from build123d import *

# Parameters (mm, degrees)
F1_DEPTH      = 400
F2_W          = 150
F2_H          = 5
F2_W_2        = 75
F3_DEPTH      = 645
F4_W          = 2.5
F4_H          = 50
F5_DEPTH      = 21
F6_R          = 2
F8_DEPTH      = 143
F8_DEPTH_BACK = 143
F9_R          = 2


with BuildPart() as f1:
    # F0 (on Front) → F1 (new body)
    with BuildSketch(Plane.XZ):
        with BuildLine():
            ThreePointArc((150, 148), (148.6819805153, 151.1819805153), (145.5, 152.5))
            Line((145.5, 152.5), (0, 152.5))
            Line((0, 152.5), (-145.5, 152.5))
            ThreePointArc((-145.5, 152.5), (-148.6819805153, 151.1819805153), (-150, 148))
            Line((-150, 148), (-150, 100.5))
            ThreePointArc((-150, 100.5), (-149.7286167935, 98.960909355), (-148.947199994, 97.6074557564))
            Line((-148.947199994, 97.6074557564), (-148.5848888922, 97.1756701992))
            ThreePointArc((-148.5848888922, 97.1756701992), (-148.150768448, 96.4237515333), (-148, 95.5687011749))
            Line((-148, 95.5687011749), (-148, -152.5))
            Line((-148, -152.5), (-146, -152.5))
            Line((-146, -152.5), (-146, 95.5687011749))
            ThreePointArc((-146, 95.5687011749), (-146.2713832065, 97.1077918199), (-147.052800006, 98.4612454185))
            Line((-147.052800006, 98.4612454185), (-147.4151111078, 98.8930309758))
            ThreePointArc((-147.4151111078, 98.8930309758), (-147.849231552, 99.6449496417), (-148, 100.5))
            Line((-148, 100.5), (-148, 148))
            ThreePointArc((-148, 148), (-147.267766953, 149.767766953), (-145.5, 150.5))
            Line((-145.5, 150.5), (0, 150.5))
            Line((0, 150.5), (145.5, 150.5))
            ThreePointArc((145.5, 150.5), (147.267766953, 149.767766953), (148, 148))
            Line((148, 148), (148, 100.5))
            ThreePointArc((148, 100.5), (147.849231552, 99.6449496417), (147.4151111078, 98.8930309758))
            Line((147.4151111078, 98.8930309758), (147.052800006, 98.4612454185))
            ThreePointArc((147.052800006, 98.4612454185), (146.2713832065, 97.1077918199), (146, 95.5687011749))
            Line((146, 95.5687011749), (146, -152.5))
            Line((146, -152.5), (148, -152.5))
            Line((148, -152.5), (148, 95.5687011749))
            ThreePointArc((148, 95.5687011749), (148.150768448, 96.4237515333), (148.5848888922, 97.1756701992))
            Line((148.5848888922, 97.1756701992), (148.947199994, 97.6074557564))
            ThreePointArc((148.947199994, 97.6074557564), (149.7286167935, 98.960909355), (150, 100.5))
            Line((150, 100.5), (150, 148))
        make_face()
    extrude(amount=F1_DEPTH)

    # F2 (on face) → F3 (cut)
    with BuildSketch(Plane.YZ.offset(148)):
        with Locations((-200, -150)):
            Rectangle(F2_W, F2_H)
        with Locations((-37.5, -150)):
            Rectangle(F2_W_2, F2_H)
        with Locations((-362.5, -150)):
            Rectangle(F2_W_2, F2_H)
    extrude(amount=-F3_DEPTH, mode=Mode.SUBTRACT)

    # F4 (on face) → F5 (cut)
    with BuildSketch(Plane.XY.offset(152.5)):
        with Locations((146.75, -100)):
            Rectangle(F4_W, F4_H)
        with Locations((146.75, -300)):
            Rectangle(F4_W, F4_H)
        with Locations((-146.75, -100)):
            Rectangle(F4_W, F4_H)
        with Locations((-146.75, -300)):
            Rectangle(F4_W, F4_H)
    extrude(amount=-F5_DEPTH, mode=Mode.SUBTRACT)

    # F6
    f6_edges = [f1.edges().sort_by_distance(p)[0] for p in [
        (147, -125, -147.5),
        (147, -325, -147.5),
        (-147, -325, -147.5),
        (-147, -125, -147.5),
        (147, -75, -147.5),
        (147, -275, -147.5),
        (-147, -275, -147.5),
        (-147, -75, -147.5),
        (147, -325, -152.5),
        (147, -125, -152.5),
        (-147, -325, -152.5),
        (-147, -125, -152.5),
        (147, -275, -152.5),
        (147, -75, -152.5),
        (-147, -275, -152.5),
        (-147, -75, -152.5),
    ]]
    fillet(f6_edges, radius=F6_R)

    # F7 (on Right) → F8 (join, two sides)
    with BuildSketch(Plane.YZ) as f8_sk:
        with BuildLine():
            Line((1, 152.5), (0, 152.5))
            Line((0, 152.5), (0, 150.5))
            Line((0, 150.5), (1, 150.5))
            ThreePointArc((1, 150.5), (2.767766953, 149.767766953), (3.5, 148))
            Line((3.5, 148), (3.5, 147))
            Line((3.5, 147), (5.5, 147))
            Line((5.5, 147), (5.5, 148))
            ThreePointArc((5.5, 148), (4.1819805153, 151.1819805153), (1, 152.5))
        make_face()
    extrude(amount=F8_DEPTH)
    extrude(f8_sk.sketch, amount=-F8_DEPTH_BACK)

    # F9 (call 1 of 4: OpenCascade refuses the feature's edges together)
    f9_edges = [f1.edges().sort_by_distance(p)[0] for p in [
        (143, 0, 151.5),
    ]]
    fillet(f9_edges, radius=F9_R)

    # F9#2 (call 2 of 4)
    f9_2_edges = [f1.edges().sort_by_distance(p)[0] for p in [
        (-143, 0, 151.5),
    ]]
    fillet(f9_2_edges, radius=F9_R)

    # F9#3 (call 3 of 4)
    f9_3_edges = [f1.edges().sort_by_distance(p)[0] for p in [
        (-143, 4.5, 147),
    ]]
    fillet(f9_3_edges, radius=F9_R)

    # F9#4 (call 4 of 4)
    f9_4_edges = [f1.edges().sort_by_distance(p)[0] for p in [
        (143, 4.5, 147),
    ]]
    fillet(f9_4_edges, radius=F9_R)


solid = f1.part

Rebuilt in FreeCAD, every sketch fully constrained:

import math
import FreeCAD as App
import Part
import Sketcher
from FreeCAD import Vector
Q = App.Units.Quantity


def edges_at(feature, points):
    """Names of the edges that pass closest to the given points."""
    edges = feature.Shape.Edges
    near = lambda p: min(range(len(edges)), key=lambda i: edges[i].distToShape(Part.Vertex(*p))[0])
    return sorted({f"Edge{near(p) + 1}" for p in points})


def add_polygon(sketch, points):
    """Adds a closed chain of lines whose ends are joined by coincident constraints."""
    first, n = sketch.GeometryCount, len(points)
    for a, b in zip(points, points[1:] + points[:1]):
        sketch.addGeometry(Part.LineSegment(App.Vector(*a, 0), App.Vector(*b, 0)), False)
    for i in range(n):
        sketch.addConstraint(Sketcher.Constraint("Coincident", first + i, 2, first + (i + 1) % n, 1))

doc = App.newDocument("Part")
body = doc.addObject("PartDesign::Body", "Body")

# Sketch on XZ plane
sketch1 = body.newObject("Sketcher::SketchObject", "Sketch")
sketch1.AttachmentSupport = (doc.getObject("XZ_Plane"), [""])
sketch1.MapMode = "FlatFace"
sketch1.addGeometry(Part.ArcOfCircle(Part.Circle(Vector(145.5, 148, 0), Vector(0, 0, 1), 4.5), math.radians(0), math.radians(90)), False)
sketch1.addGeometry(Part.LineSegment(Vector(145.5, 152.5, 0), Vector(-145.5, 152.5, 0)), False)
sketch1.addGeometry(Part.ArcOfCircle(Part.Circle(Vector(-145.5, 148, 0), Vector(0, 0, 1), 4.5), math.radians(90), math.radians(180)), False)
sketch1.addGeometry(Part.LineSegment(Vector(-150, 148, 0), Vector(-150, 100.5, 0)), False)
sketch1.addGeometry(Part.ArcOfCircle(Part.Circle(Vector(-145.5, 100.5, 0), Vector(0, 0, 1), 4.5), math.radians(180), math.radians(220)), False)
sketch1.addGeometry(Part.LineSegment(Vector(-148.9, 97.6, 0), Vector(-148.6, 97.2, 0)), False)
sketch1.addGeometry(Part.ArcOfCircle(Part.Circle(Vector(-150.5, 95.6, 0), Vector(0, 0, 1), 2.5), math.radians(0), math.radians(40)), False)
sketch1.addGeometry(Part.LineSegment(Vector(-148, 95.6, 0), Vector(-148, -152.5, 0)), False)
sketch1.addGeometry(Part.LineSegment(Vector(-148, -152.5, 0), Vector(-146, -152.5, 0)), False)
sketch1.addGeometry(Part.LineSegment(Vector(-146, -152.5, 0), Vector(-146, 95.6, 0)), False)
sketch1.addGeometry(Part.ArcOfCircle(Part.Circle(Vector(-150.5, 95.6, 0), Vector(0, 0, 1), 4.5), math.radians(0), math.radians(40)), False)
sketch1.addGeometry(Part.LineSegment(Vector(-147.1, 98.5, 0), Vector(-147.4, 98.9, 0)), False)
sketch1.addGeometry(Part.ArcOfCircle(Part.Circle(Vector(-145.5, 100.5, 0), Vector(0, 0, 1), 2.5), math.radians(180), math.radians(220)), False)
sketch1.addGeometry(Part.LineSegment(Vector(-148, 100.5, 0), Vector(-148, 148, 0)), False)
sketch1.addGeometry(Part.ArcOfCircle(Part.Circle(Vector(-145.5, 148, 0), Vector(0, 0, 1), 2.5), math.radians(90), math.radians(180)), False)
sketch1.addGeometry(Part.LineSegment(Vector(-145.5, 150.5, 0), Vector(145.5, 150.5, 0)), False)
sketch1.addGeometry(Part.ArcOfCircle(Part.Circle(Vector(145.5, 148, 0), Vector(0, 0, 1), 2.5), math.radians(0), math.radians(90)), False)
sketch1.addGeometry(Part.LineSegment(Vector(148, 148, 0), Vector(148, 100.5, 0)), False)
sketch1.addGeometry(Part.ArcOfCircle(Part.Circle(Vector(145.5, 100.5, 0), Vector(0, 0, 1), 2.5), math.radians(-40), math.radians(0)), False)
sketch1.addGeometry(Part.LineSegment(Vector(147.4, 98.9, 0), Vector(147.1, 98.5, 0)), False)
sketch1.addGeometry(Part.ArcOfCircle(Part.Circle(Vector(150.5, 95.6, 0), Vector(0, 0, 1), 4.5), math.radians(140), math.radians(180)), False)
sketch1.addGeometry(Part.LineSegment(Vector(146, 95.6, 0), Vector(146, -152.5, 0)), False)
sketch1.addGeometry(Part.LineSegment(Vector(146, -152.5, 0), Vector(148, -152.5, 0)), False)
sketch1.addGeometry(Part.LineSegment(Vector(148, -152.5, 0), Vector(148, 95.6, 0)), False)
sketch1.addGeometry(Part.ArcOfCircle(Part.Circle(Vector(150.5, 95.6, 0), Vector(0, 0, 1), 2.5), math.radians(140), math.radians(180)), False)
sketch1.addGeometry(Part.LineSegment(Vector(148.6, 97.2, 0), Vector(148.9, 97.6, 0)), False)
sketch1.addGeometry(Part.ArcOfCircle(Part.Circle(Vector(145.5, 100.5, 0), Vector(0, 0, 1), 4.5), math.radians(-40), math.radians(0)), False)
sketch1.addGeometry(Part.LineSegment(Vector(150, 100.5, 0), Vector(150, 148, 0)), False)
sketch1.addConstraint(Sketcher.Constraint("Tangent", 0, 2, 1, 1))
sketch1.addConstraint(Sketcher.Constraint("Tangent", 1, 2, 2, 1))
sketch1.addConstraint(Sketcher.Constraint("Tangent", 2, 2, 3, 1))
sketch1.addConstraint(Sketcher.Constraint("Tangent", 3, 2, 4, 1))
sketch1.addConstraint(Sketcher.Constraint("Tangent", 4, 2, 5, 1))
sketch1.addConstraint(Sketcher.Constraint("Tangent", 5, 2, 6, 2))
sketch1.addConstraint(Sketcher.Constraint("Tangent", 6, 1, 7, 1))
sketch1.addConstraint(Sketcher.Constraint("Coincident", 7, 2, 8, 1))
sketch1.addConstraint(Sketcher.Constraint("Coincident", 8, 2, 9, 1))
sketch1.addConstraint(Sketcher.Constraint("Tangent", 9, 2, 10, 1))
sketch1.addConstraint(Sketcher.Constraint("Tangent", 10, 2, 11, 1))
sketch1.addConstraint(Sketcher.Constraint("Tangent", 11, 2, 12, 2))
sketch1.addConstraint(Sketcher.Constraint("Tangent", 12, 1, 13, 1))
sketch1.addConstraint(Sketcher.Constraint("Tangent", 13, 2, 14, 2))
sketch1.addConstraint(Sketcher.Constraint("Tangent", 14, 1, 15, 1))
sketch1.addConstraint(Sketcher.Constraint("Tangent", 15, 2, 16, 2))
sketch1.addConstraint(Sketcher.Constraint("Tangent", 16, 1, 17, 1))
sketch1.addConstraint(Sketcher.Constraint("Tangent", 17, 2, 18, 2))
sketch1.addConstraint(Sketcher.Constraint("Tangent", 18, 1, 19, 1))
sketch1.addConstraint(Sketcher.Constraint("Tangent", 19, 2, 20, 1))
sketch1.addConstraint(Sketcher.Constraint("Tangent", 20, 2, 21, 1))
sketch1.addConstraint(Sketcher.Constraint("Coincident", 21, 2, 22, 1))
sketch1.addConstraint(Sketcher.Constraint("Coincident", 22, 2, 23, 1))
sketch1.addConstraint(Sketcher.Constraint("Tangent", 23, 2, 24, 2))
sketch1.addConstraint(Sketcher.Constraint("Tangent", 24, 1, 25, 1))
sketch1.addConstraint(Sketcher.Constraint("Tangent", 25, 2, 26, 1))
sketch1.addConstraint(Sketcher.Constraint("Tangent", 26, 2, 27, 1))
sketch1.addConstraint(Sketcher.Constraint("Tangent", 27, 2, 0, 1))
sketch1.addConstraint(Sketcher.Constraint("Horizontal", 1))
sketch1.addConstraint(Sketcher.Constraint("Vertical", 3))
sketch1.addConstraint(Sketcher.Constraint("Vertical", 7))
sketch1.addConstraint(Sketcher.Constraint("Horizontal", 8))
sketch1.addConstraint(Sketcher.Constraint("Vertical", 9))
sketch1.addConstraint(Sketcher.Constraint("Vertical", 13))
sketch1.addConstraint(Sketcher.Constraint("Horizontal", 15))
sketch1.addConstraint(Sketcher.Constraint("Vertical", 17))
sketch1.addConstraint(Sketcher.Constraint("Vertical", 21))
sketch1.addConstraint(Sketcher.Constraint("Horizontal", 22))
sketch1.addConstraint(Sketcher.Constraint("Vertical", 23))
sketch1.addConstraint(Sketcher.Constraint("Vertical", 27))
sketch1.addConstraint(Sketcher.Constraint("Coincident", 10, 3, 6, 3))
sketch1.addConstraint(Sketcher.Constraint("Coincident", 12, 3, 4, 3))
sketch1.addConstraint(Sketcher.Constraint("Coincident", 14, 3, 2, 3))
sketch1.addConstraint(Sketcher.Constraint("Coincident", 16, 3, 0, 3))
sketch1.addConstraint(Sketcher.Constraint("Coincident", 24, 3, 20, 3))
sketch1.addConstraint(Sketcher.Constraint("Coincident", 26, 3, 18, 3))
sketch1.addConstraint(Sketcher.Constraint("Equal", 0, 2))
sketch1.addConstraint(Sketcher.Constraint("Equal", 2, 4))
sketch1.addConstraint(Sketcher.Constraint("Equal", 4, 10))
sketch1.addConstraint(Sketcher.Constraint("Equal", 6, 12))
sketch1.addConstraint(Sketcher.Constraint("Equal", 16, 18))
sketch1.addConstraint(Sketcher.Constraint("Equal", 10, 20))
sketch1.addConstraint(Sketcher.Constraint("Equal", 18, 24))
sketch1.addConstraint(Sketcher.Constraint("Symmetric", 4, 3, 18, 3, -2))
sketch1.addConstraint(Sketcher.Constraint("Symmetric", 6, 3, 20, 3, -2))
sketch1.addConstraint(Sketcher.Constraint("Horizontal", 8, 2, 21, 2))
sketch1.addConstraint(Sketcher.Constraint("Vertical", 7, 2, 12, 1))
sketch1.addConstraint(Sketcher.Constraint("Radius", 0, 4.5))
sketch1.addConstraint(Sketcher.Constraint("Radius", 6, 2.5))
sketch1.addConstraint(Sketcher.Constraint("DistanceX", 1, 2, 1, 1, 291.0))
sketch1.addConstraint(Sketcher.Constraint("Angle", 5, Q("-50 deg")))
sketch1.addConstraint(Sketcher.Constraint("DistanceY", 3, 2, 3, 1, 47.5))
sketch1.addConstraint(Sketcher.Constraint("DistanceY", -1, 1, 0, 3, 148.0))
sketch1.addConstraint(Sketcher.Constraint("DistanceY", 7, 2, -1, 1, 152.5))
pad1 = body.newObject("PartDesign::Pad", "Pad")
pad1.Profile = sketch1
pad1.Length = 400

# Sketch on YZ plane
sketch2 = body.newObject("Sketcher::SketchObject", "Sketch001")
sketch2.AttachmentSupport = (doc.getObject("YZ_Plane"), [""])
sketch2.MapMode = "FlatFace"
sketch2.AttachmentOffset = App.Placement(Vector(0, 0, 148), App.Rotation())
add_polygon(sketch2, [(-275, -148), (-275, -152), (-125, -152), (-125, -148)])  # lines 0-3
add_polygon(sketch2, [(-75, -148), (-75, -152), (0, -152), (0, -148)])  # lines 4-7
add_polygon(sketch2, [(-400, -148), (-400, -152), (-325, -152), (-325, -148)])  # lines 8-11
sketch2.addConstraint(Sketcher.Constraint("Vertical", 0))
sketch2.addConstraint(Sketcher.Constraint("Horizontal", 1))
sketch2.addConstraint(Sketcher.Constraint("Vertical", 2))
sketch2.addConstraint(Sketcher.Constraint("Horizontal", 3))
sketch2.addConstraint(Sketcher.Constraint("Vertical", 4))
sketch2.addConstraint(Sketcher.Constraint("Horizontal", 5))
sketch2.addConstraint(Sketcher.Constraint("Vertical", 6))
sketch2.addConstraint(Sketcher.Constraint("Horizontal", 7))
sketch2.addConstraint(Sketcher.Constraint("Vertical", 8))
sketch2.addConstraint(Sketcher.Constraint("Horizontal", 9))
sketch2.addConstraint(Sketcher.Constraint("Vertical", 10))
sketch2.addConstraint(Sketcher.Constraint("Horizontal", 11))
sketch2.addConstraint(Sketcher.Constraint("PointOnObject", 5, 2, -2))
sketch2.addConstraint(Sketcher.Constraint("Horizontal", 1, 2, 4, 2))
sketch2.addConstraint(Sketcher.Constraint("Horizontal", 3, 2, 6, 2))
sketch2.addConstraint(Sketcher.Constraint("Horizontal", 5, 2, 8, 2))
sketch2.addConstraint(Sketcher.Constraint("Horizontal", 7, 2, 10, 2))
sketch2.addConstraint(Sketcher.Constraint("Equal", 7, 9))
sketch2.addConstraint(Sketcher.Constraint("DistanceX", 1, 1, 1, 2, 150.0))
sketch2.addConstraint(Sketcher.Constraint("DistanceX", 5, 1, 5, 2, 75.0))
sketch2.addConstraint(Sketcher.Constraint("DistanceY", 0, 2, 0, 1, 5.0))
sketch2.addConstraint(Sketcher.Constraint("DistanceX", 0, 2, -1, 1, 275.0))
sketch2.addConstraint(Sketcher.Constraint("DistanceX", 8, 2, -1, 1, 400.0))
sketch2.addConstraint(Sketcher.Constraint("DistanceY", 0, 2, -1, 1, 152.5))
pocket1 = body.newObject("PartDesign::Pocket", "Pocket")
pocket1.Profile = sketch2
pocket1.Length = 645

# Sketch on XY plane
sketch3 = body.newObject("Sketcher::SketchObject", "Sketch002")
sketch3.AttachmentSupport = (doc.getObject("XY_Plane"), [""])
sketch3.MapMode = "FlatFace"
sketch3.AttachmentOffset = App.Placement(Vector(0, 0, 152.5), App.Rotation())
add_polygon(sketch3, [(145.5, -75), (145.5, -125), (148, -125), (148, -75)])  # lines 0-3
add_polygon(sketch3, [(145.5, -275), (145.5, -325), (148, -325), (148, -275)])  # lines 4-7
add_polygon(sketch3, [(-148, -75), (-148, -125), (-145.5, -125), (-145.5, -75)])  # lines 8-11
add_polygon(sketch3, [(-148, -275), (-148, -325), (-145.5, -325), (-145.5, -275)])  # lines 12-15
sketch3.addConstraint(Sketcher.Constraint("Vertical", 0))
sketch3.addConstraint(Sketcher.Constraint("Horizontal", 1))
sketch3.addConstraint(Sketcher.Constraint("Vertical", 2))
sketch3.addConstraint(Sketcher.Constraint("Horizontal", 3))
sketch3.addConstraint(Sketcher.Constraint("Vertical", 4))
sketch3.addConstraint(Sketcher.Constraint("Horizontal", 5))
sketch3.addConstraint(Sketcher.Constraint("Vertical", 6))
sketch3.addConstraint(Sketcher.Constraint("Horizontal", 7))
sketch3.addConstraint(Sketcher.Constraint("Vertical", 8))
sketch3.addConstraint(Sketcher.Constraint("Horizontal", 9))
sketch3.addConstraint(Sketcher.Constraint("Vertical", 10))
sketch3.addConstraint(Sketcher.Constraint("Horizontal", 11))
sketch3.addConstraint(Sketcher.Constraint("Vertical", 12))
sketch3.addConstraint(Sketcher.Constraint("Horizontal", 13))
sketch3.addConstraint(Sketcher.Constraint("Vertical", 14))
sketch3.addConstraint(Sketcher.Constraint("Horizontal", 15))
sketch3.addConstraint(Sketcher.Constraint("Symmetric", 1, 2, 8, 2, -2))
sketch3.addConstraint(Sketcher.Constraint("Symmetric", 3, 2, 10, 2, -2))
sketch3.addConstraint(Sketcher.Constraint("Symmetric", 5, 2, 12, 2, -2))
sketch3.addConstraint(Sketcher.Constraint("Symmetric", 7, 2, 14, 2, -2))
sketch3.addConstraint(Sketcher.Constraint("Vertical", 3, 2, 4, 2))
sketch3.addConstraint(Sketcher.Constraint("Vertical", 2, 2, 5, 2))
sketch3.addConstraint(Sketcher.Constraint("Equal", 2, 4))
sketch3.addConstraint(Sketcher.Constraint("DistanceY", 0, 2, 0, 1, 50.0))
sketch3.addConstraint(Sketcher.Constraint("DistanceX", 1, 1, 1, 2, 2.5))
sketch3.addConstraint(Sketcher.Constraint("DistanceY", 0, 2, -1, 1, 125.0))
sketch3.addConstraint(Sketcher.Constraint("DistanceX", -1, 1, 1, 2, 148.0))
sketch3.addConstraint(Sketcher.Constraint("DistanceY", 4, 2, -1, 1, 325.0))
pocket2 = body.newObject("PartDesign::Pocket", "Pocket001")
pocket2.Profile = sketch3
pocket2.Length = 21
doc.recompute()

fillet = body.newObject("PartDesign::Fillet", "Fillet")
fillet.Base = (pocket2, edges_at(pocket2, [
    (147, -125, -147.5),
    (147, -325, -147.5),
    (-147, -325, -147.5),
    (-147, -125, -147.5),
    (147, -75, -147.5),
    (147, -275, -147.5),
    (-147, -275, -147.5),
    (-147, -75, -147.5),
    (147, -325, -152.5),
    (147, -125, -152.5),
    (-147, -325, -152.5),
    (-147, -125, -152.5),
    (147, -275, -152.5),
    (147, -75, -152.5),
    (-147, -275, -152.5),
    (-147, -75, -152.5),
]))
fillet.Radius = 2

# Sketch on YZ plane
sketch4 = body.newObject("Sketcher::SketchObject", "Sketch003")
sketch4.AttachmentSupport = (doc.getObject("YZ_Plane"), [""])
sketch4.MapMode = "FlatFace"
sketch4.addGeometry(Part.LineSegment(Vector(1, 152.5, 0), Vector(0, 152.5, 0)), False)
sketch4.addGeometry(Part.LineSegment(Vector(0, 152.5, 0), Vector(0, 150.5, 0)), False)
sketch4.addGeometry(Part.LineSegment(Vector(0, 150.5, 0), Vector(1, 150.5, 0)), False)
sketch4.addGeometry(Part.ArcOfCircle(Part.Circle(Vector(1, 148, 0), Vector(0, 0, 1), 2.5), math.radians(0), math.radians(90)), False)
sketch4.addGeometry(Part.LineSegment(Vector(3.5, 148, 0), Vector(3.5, 147, 0)), False)
sketch4.addGeometry(Part.LineSegment(Vector(3.5, 147, 0), Vector(5.5, 147, 0)), False)
sketch4.addGeometry(Part.LineSegment(Vector(5.5, 147, 0), Vector(5.5, 148, 0)), False)
sketch4.addGeometry(Part.ArcOfCircle(Part.Circle(Vector(1, 148, 0), Vector(0, 0, 1), 4.5), math.radians(0), math.radians(90)), False)
sketch4.addConstraint(Sketcher.Constraint("Coincident", 0, 2, 1, 1))
sketch4.addConstraint(Sketcher.Constraint("Coincident", 1, 2, 2, 1))
sketch4.addConstraint(Sketcher.Constraint("Tangent", 2, 2, 3, 2))
sketch4.addConstraint(Sketcher.Constraint("Tangent", 3, 1, 4, 1))
sketch4.addConstraint(Sketcher.Constraint("Coincident", 4, 2, 5, 1))
sketch4.addConstraint(Sketcher.Constraint("Coincident", 5, 2, 6, 1))
sketch4.addConstraint(Sketcher.Constraint("Tangent", 6, 2, 7, 1))
sketch4.addConstraint(Sketcher.Constraint("Tangent", 7, 2, 0, 1))
sketch4.addConstraint(Sketcher.Constraint("Horizontal", 0))
sketch4.addConstraint(Sketcher.Constraint("Vertical", 1))
sketch4.addConstraint(Sketcher.Constraint("Horizontal", 2))
sketch4.addConstraint(Sketcher.Constraint("Vertical", 4))
sketch4.addConstraint(Sketcher.Constraint("Horizontal", 5))
sketch4.addConstraint(Sketcher.Constraint("Vertical", 6))
sketch4.addConstraint(Sketcher.Constraint("Coincident", 7, 3, 3, 3))
sketch4.addConstraint(Sketcher.Constraint("PointOnObject", 0, 2, -2))
sketch4.addConstraint(Sketcher.Constraint("Equal", 2, 4))
sketch4.addConstraint(Sketcher.Constraint("Radius", 3, 2.5))
sketch4.addConstraint(Sketcher.Constraint("Radius", 7, 4.5))
sketch4.addConstraint(Sketcher.Constraint("DistanceX", 0, 2, 0, 1, 1.0))
sketch4.addConstraint(Sketcher.Constraint("DistanceY", -1, 1, 3, 3, 148.0))
pad2 = body.newObject("PartDesign::Pad", "Pad001")
pad2.Profile = sketch4
pad2.Type = "TwoLengths"
pad2.Length = 143
pad2.Length2 = 143
doc.recompute()

fillet2 = body.newObject("PartDesign::Fillet", "Fillet001")
fillet2.Base = (pad2, edges_at(pad2, [(143, 0, 151.5)]))
fillet2.Radius = 2
doc.recompute()

fillet3 = body.newObject("PartDesign::Fillet", "Fillet002")
fillet3.Base = (fillet2, edges_at(fillet2, [(-143, 0, 151.5)]))
fillet3.Radius = 2
doc.recompute()

fillet4 = body.newObject("PartDesign::Fillet", "Fillet003")
fillet4.Base = (fillet3, edges_at(fillet3, [(-143, 4.5, 147)]))
fillet4.Radius = 2
doc.recompute()

fillet5 = body.newObject("PartDesign::Fillet", "Fillet004")
fillet5.Base = (fillet4, edges_at(fillet4, [(143, 4.5, 147)]))
fillet5.Radius = 2

doc.recompute()
